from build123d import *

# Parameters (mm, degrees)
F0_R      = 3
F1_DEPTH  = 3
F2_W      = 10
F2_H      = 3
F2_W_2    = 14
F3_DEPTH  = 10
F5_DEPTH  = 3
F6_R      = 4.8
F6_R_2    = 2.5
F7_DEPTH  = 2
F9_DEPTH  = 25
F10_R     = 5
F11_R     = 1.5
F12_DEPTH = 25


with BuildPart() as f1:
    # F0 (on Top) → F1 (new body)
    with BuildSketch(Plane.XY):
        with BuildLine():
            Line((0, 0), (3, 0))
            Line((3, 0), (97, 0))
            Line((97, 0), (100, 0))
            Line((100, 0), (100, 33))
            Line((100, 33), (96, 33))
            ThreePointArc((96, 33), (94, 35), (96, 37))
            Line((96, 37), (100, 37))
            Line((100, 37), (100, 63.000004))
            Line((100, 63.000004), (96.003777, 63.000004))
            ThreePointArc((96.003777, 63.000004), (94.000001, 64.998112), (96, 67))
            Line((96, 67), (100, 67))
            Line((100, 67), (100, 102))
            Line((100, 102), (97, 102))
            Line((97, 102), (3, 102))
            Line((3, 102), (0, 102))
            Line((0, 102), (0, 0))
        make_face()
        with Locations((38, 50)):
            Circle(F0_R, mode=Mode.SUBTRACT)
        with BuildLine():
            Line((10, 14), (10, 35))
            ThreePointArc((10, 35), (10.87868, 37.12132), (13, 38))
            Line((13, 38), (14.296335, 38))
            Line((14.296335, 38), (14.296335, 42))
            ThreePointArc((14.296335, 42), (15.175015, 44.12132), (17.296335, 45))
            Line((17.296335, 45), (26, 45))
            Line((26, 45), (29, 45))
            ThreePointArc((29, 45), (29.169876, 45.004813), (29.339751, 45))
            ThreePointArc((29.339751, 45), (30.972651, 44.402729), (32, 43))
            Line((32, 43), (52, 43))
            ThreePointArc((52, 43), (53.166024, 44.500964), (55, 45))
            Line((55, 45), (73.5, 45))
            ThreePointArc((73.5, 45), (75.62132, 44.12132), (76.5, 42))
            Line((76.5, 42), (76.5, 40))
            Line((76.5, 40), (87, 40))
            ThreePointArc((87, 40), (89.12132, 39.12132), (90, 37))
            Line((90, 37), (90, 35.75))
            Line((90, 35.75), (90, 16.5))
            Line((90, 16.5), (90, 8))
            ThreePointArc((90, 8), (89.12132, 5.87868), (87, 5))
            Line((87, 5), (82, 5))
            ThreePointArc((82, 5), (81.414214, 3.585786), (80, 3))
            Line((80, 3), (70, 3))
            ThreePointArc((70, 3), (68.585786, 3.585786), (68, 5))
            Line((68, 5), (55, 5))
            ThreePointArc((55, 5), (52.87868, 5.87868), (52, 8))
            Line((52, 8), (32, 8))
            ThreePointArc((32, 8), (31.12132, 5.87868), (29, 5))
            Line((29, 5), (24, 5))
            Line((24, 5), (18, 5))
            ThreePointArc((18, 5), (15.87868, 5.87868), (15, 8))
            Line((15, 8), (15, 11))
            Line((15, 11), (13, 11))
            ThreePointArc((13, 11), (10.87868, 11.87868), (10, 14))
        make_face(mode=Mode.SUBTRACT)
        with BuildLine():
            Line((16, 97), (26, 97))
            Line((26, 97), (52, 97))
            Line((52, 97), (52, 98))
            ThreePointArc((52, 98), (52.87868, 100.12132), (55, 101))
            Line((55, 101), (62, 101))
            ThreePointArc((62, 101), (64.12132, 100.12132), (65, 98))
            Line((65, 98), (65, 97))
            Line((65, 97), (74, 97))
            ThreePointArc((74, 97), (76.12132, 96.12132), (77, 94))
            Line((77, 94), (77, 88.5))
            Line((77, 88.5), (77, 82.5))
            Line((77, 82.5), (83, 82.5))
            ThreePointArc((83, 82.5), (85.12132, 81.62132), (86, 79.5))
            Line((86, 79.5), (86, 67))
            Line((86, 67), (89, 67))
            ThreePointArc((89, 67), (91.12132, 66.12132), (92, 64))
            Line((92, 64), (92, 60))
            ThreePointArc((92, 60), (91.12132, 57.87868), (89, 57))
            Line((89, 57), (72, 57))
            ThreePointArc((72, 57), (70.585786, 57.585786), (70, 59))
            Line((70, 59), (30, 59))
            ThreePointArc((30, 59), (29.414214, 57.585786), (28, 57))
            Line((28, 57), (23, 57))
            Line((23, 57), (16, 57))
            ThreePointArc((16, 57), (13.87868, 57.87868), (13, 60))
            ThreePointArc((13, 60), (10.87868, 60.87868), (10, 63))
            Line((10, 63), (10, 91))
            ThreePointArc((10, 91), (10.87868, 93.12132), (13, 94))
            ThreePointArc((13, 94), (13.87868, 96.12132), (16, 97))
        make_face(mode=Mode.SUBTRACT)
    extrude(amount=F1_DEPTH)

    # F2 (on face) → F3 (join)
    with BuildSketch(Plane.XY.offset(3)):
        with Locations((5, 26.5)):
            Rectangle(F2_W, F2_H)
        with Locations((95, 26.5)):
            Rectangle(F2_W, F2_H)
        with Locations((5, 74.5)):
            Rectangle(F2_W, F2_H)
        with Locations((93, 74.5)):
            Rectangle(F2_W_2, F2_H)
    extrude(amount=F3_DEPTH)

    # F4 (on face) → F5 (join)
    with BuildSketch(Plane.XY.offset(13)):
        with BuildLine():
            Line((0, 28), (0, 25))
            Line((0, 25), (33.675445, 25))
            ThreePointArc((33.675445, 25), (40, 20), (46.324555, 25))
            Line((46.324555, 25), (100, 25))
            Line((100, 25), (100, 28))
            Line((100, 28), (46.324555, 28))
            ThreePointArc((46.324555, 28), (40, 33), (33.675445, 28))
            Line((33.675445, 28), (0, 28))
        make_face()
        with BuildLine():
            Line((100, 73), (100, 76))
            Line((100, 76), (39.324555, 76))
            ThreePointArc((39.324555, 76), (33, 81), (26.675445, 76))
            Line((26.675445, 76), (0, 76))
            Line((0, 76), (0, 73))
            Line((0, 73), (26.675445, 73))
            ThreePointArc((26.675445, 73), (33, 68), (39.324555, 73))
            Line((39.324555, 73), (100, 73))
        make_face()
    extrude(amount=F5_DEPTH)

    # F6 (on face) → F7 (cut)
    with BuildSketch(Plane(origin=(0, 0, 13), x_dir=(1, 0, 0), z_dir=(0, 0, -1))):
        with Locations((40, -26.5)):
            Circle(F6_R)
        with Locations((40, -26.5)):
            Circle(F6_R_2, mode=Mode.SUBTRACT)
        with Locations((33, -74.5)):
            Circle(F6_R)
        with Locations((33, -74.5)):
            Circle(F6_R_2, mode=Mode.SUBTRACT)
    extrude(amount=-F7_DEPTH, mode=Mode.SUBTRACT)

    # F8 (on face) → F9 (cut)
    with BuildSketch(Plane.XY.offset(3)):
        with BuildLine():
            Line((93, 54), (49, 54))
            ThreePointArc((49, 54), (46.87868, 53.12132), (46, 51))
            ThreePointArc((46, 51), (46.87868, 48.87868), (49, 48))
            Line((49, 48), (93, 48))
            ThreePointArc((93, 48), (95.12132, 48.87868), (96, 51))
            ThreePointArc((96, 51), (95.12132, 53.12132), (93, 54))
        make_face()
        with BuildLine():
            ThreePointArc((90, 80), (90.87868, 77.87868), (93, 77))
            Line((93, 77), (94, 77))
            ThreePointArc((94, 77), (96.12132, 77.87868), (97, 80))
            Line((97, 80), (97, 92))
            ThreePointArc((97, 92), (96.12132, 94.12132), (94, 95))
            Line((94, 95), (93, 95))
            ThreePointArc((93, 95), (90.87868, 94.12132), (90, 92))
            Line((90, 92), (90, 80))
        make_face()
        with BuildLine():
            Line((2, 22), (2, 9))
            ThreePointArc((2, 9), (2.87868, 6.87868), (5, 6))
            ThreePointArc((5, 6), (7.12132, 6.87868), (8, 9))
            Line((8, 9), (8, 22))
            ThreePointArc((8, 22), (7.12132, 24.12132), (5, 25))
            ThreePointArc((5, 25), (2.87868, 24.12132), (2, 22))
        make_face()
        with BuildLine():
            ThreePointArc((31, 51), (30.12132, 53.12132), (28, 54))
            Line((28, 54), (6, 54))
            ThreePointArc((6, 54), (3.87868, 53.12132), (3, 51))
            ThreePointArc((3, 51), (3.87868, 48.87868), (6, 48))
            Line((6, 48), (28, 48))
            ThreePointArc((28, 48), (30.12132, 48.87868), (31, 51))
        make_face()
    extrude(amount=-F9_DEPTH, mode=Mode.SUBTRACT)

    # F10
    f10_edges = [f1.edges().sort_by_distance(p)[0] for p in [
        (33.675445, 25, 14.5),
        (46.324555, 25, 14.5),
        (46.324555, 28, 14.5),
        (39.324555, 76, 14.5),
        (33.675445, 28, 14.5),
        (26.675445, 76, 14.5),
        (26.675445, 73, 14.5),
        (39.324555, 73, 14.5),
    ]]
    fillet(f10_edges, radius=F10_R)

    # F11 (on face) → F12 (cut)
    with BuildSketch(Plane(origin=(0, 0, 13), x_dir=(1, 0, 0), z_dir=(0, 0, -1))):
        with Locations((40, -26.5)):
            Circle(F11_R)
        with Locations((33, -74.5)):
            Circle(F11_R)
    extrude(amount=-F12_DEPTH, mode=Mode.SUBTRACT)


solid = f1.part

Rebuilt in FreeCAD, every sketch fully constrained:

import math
import FreeCAD as App
import Part
import Sketcher


def edges_at(feature, points):
    """Names of the edges that pass closest to the given points."""
    edges = feature.Shape.Edges
    near = lambda p: min(range(len(edges)), key=lambda i: edges[i].distToShape(Part.Vertex(*p))[0])
    return sorted({f"Edge{near(p) + 1}" for p in points})


def add_polygon(sketch, points):
    """Adds a closed chain of lines whose ends are joined by coincident constraints."""
    first, n = sketch.GeometryCount, len(points)
    for a, b in zip(points, points[1:] + points[:1]):
        sketch.addGeometry(Part.LineSegment(App.Vector(*a, 0), App.Vector(*b, 0)), False)
    for i in range(n):
        sketch.addConstraint(Sketcher.Constraint("Coincident", first + i, 2, first + (i + 1) % n, 1))

doc = App.newDocument("Part")
body = doc.addObject("PartDesign::Body", "Body")

# Sketch on XY plane
sketch1 = body.newObject("Sketcher::SketchObject", "Sketch")
sketch1.AttachmentSupport = (doc.getObject("XY_Plane"), [""])
sketch1.MapMode = "FlatFace"
sketch1.addGeometry([
    Part.LineSegment(App.Vector(0, 0, 0), App.Vector(100, 0, 0)),  # 0
    Part.LineSegment(App.Vector(100, 0, 0), App.Vector(100, 33, 0)),  # 1
    Part.LineSegment(App.Vector(100, 33, 0), App.Vector(96, 33, 0)),  # 2
    Part.ArcOfCircle(Part.Circle(App.Vector(96, 35, 0), App.Vector(0, 0, 1), 2), math.radians(90), math.radians(270)),  # 3
    Part.LineSegment(App.Vector(96, 37, 0), App.Vector(100, 37, 0)),  # 4
    Part.LineSegment(App.Vector(100, 37, 0), App.Vector(100, 63.000004, 0)),  # 5
    Part.LineSegment(App.Vector(100, 63.000004, 0), App.Vector(96.003777, 63.000004, 0)),  # 6
    Part.ArcOfCircle(Part.Circle(App.Vector(96, 65, 0), App.Vector(0, 0, 1), 2), math.radians(89.999997), math.radians(270.108206)),  # 7
    Part.LineSegment(App.Vector(96, 67, 0), App.Vector(100, 67, 0)),  # 8
    Part.LineSegment(App.Vector(100, 67, 0), App.Vector(100, 102, 0)),  # 9
    Part.LineSegment(App.Vector(100, 102, 0), App.Vector(0, 102, 0)),  # 10
    Part.LineSegment(App.Vector(0, 102, 0), App.Vector(0, 0, 0)),  # 11
    Part.ArcOfCircle(Part.Circle(App.Vector(13.000001, 14.000001, 0), App.Vector(0, 0, 1), 3.000001), math.radians(-179.999978), math.radians(-90.000022)),  # 12
    Part.LineSegment(App.Vector(10, 14, 0), App.Vector(10, 35, 0)),  # 13
    Part.ArcOfCircle(Part.Circle(App.Vector(13.000001, 34.999999, 0), App.Vector(0, 0, 1), 3.000001), math.radians(90.000022), math.radians(179.999978)),  # 14
    Part.LineSegment(App.Vector(13, 38, 0), App.Vector(14.296335, 38, 0)),  # 15
    Part.LineSegment(App.Vector(14.296335, 38, 0), App.Vector(14.296335, 42, 0)),  # 16
    Part.ArcOfCircle(Part.Circle(App.Vector(17.296336, 41.999999, 0), App.Vector(0, 0, 1), 3.000001), math.radians(90.000022), math.radians(179.999978)),  # 17
    Part.LineSegment(App.Vector(17.296335, 45, 0), App.Vector(29, 45, 0)),  # 18
    Part.ArcOfCircle(Part.Circle(App.Vector(29.169875, 42.004517, 0), App.Vector(0, 0, 1), 3.000296), math.radians(86.754201), math.radians(93.245799)),  # 19
    Part.ArcOfCircle(Part.Circle(App.Vector(29.169874, 42.004812, 0), App.Vector(0, 0, 1), 3.000002), math.radians(19.373766), math.radians(86.753861)),  # 20
    Part.LineSegment(App.Vector(32, 43, 0), App.Vector(52, 43, 0)),  # 21
    Part.ArcOfCircle(Part.Circle(App.Vector(54.830126, 42.004812, 0), App.Vector(0, 0, 1), 3.000002), math.radians(86.753903), math.radians(160.626232)),  # 22
    Part.LineSegment(App.Vector(55, 45, 0), App.Vector(73.5, 45, 0)),  # 23
    Part.ArcOfCircle(Part.Circle(App.Vector(73.499999, 41.999999, 0), App.Vector(0, 0, 1), 3.000001), math.radians(0.000022), math.radians(89.999978)),  # 24
    Part.LineSegment(App.Vector(76.5, 42, 0), App.Vector(76.5, 40, 0)),  # 25
    Part.LineSegment(App.Vector(76.5, 40, 0), App.Vector(87, 40, 0)),  # 26
    Part.ArcOfCircle(Part.Circle(App.Vector(86.999999, 36.999999, 0), App.Vector(0, 0, 1), 3.000001), math.radians(0.000022), math.radians(89.999978)),  # 27
    Part.LineSegment(App.Vector(90, 37, 0), App.Vector(90, 8, 0)),  # 28
    Part.ArcOfCircle(Part.Circle(App.Vector(86.999999, 8.000001, 0), App.Vector(0, 0, 1), 3.000001), math.radians(-89.999978), math.radians(-0.000022)),  # 29
    Part.LineSegment(App.Vector(87, 5, 0), App.Vector(82, 5, 0)),  # 30
    Part.ArcOfCircle(Part.Circle(App.Vector(80.000001, 4.999999, 0), App.Vector(0, 0, 1), 1.999999), math.radians(-90.000043), math.radians(0.000043)),  # 31
    Part.LineSegment(App.Vector(80, 3, 0), App.Vector(70, 3, 0)),  # 32
    Part.ArcOfCircle(Part.Circle(App.Vector(69.999999, 4.999999, 0), App.Vector(0, 0, 1), 1.999999), math.radians(179.999957), math.radians(270.000043)),  # 33
    Part.LineSegment(App.Vector(68, 5, 0), App.Vector(55, 5, 0)),  # 34
    Part.ArcOfCircle(Part.Circle(App.Vector(55.000001, 8.000001, 0), App.Vector(0, 0, 1), 3.000001), math.radians(-179.999978), math.radians(-90.000022)),  # 35
    Part.LineSegment(App.Vector(52, 8, 0), App.Vector(32, 8, 0)),  # 36
    Part.ArcOfCircle(Part.Circle(App.Vector(28.999999, 8.000001, 0), App.Vector(0, 0, 1), 3.000001), math.radians(-89.999978), math.radians(-0.000022)),  # 37
    Part.LineSegment(App.Vector(29, 5, 0), App.Vector(18, 5, 0)),  # 38
    Part.ArcOfCircle(Part.Circle(App.Vector(18.000001, 8.000001, 0), App.Vector(0, 0, 1), 3.000001), math.radians(-179.999978), math.radians(-90.000022)),  # 39
    Part.LineSegment(App.Vector(15, 8, 0), App.Vector(15, 11, 0)),  # 40
    Part.LineSegment(App.Vector(15, 11, 0), App.Vector(13, 11, 0)),  # 41
    Part.Circle(App.Vector(38, 50, 0), App.Vector(0, 0, 1), 3),  # 42
    Part.ArcOfCircle(Part.Circle(App.Vector(16.000001, 93.999999, 0), App.Vector(0, 0, 1), 3.000001), math.radians(90.000022), math.radians(179.999978)),  # 43
    Part.LineSegment(App.Vector(16, 97, 0), App.Vector(52, 97, 0)),  # 44
    Part.LineSegment(App.Vector(52, 97, 0), App.Vector(52, 98, 0)),  # 45
    Part.ArcOfCircle(Part.Circle(App.Vector(55.000001, 97.999999, 0), App.Vector(0, 0, 1), 3.000001), math.radians(90.000022), math.radians(179.999978)),  # 46
    Part.LineSegment(App.Vector(55, 101, 0), App.Vector(62, 101, 0)),  # 47
    Part.ArcOfCircle(Part.Circle(App.Vector(61.999999, 97.999999, 0), App.Vector(0, 0, 1), 3.000001), math.radians(0.000022), math.radians(89.999978)),  # 48
    Part.LineSegment(App.Vector(65, 98, 0), App.Vector(65, 97, 0)),  # 49
    Part.LineSegment(App.Vector(65, 97, 0), App.Vector(74, 97, 0)),  # 50
    Part.ArcOfCircle(Part.Circle(App.Vector(73.999999, 93.999999, 0), App.Vector(0, 0, 1), 3.000001), math.radians(0.000022), math.radians(89.999978)),  # 51
    Part.LineSegment(App.Vector(77, 94, 0), App.Vector(77, 82.5, 0)),  # 52
    Part.LineSegment(App.Vector(77, 82.5, 0), App.Vector(83, 82.5, 0)),  # 53
    Part.ArcOfCircle(Part.Circle(App.Vector(82.999999, 79.499999, 0), App.Vector(0, 0, 1), 3.000001), math.radians(0.000022), math.radians(89.999978)),  # 54
    Part.LineSegment(App.Vector(86, 79.5, 0), App.Vector(86, 67, 0)),  # 55
    Part.LineSegment(App.Vector(86, 67, 0), App.Vector(89, 67, 0)),  # 56
    Part.ArcOfCircle(Part.Circle(App.Vector(88.999999, 63.999999, 0), App.Vector(0, 0, 1), 3.000001), math.radians(0.000022), math.radians(89.999978)),  # 57
    Part.LineSegment(App.Vector(92, 64, 0), App.Vector(92, 60, 0)),  # 58
    Part.ArcOfCircle(Part.Circle(App.Vector(88.999999, 60.000001, 0), App.Vector(0, 0, 1), 3.000001), math.radians(-89.999978), math.radians(-0.000022)),  # 59
    Part.LineSegment(App.Vector(89, 57, 0), App.Vector(72, 57, 0)),  # 60
    Part.ArcOfCircle(Part.Circle(App.Vector(71.999999, 58.999999, 0), App.Vector(0, 0, 1), 1.999999), math.radians(179.999957), math.radians(270.000043)),  # 61
    Part.LineSegment(App.Vector(70, 59, 0), App.Vector(30, 59, 0)),  # 62
    Part.ArcOfCircle(Part.Circle(App.Vector(28.000001, 58.999999, 0), App.Vector(0, 0, 1), 1.999999), math.radians(-90.000043), math.radians(0.000043)),  # 63
    Part.LineSegment(App.Vector(28, 57, 0), App.Vector(16, 57, 0)),  # 64
    Part.ArcOfCircle(Part.Circle(App.Vector(16.000001, 60.000001, 0), App.Vector(0, 0, 1), 3.000001), math.radians(-179.999978), math.radians(-90.000022)),  # 65
    Part.ArcOfCircle(Part.Circle(App.Vector(13.000001, 63.000001, 0), App.Vector(0, 0, 1), 3.000001), math.radians(-179.999978), math.radians(-90.000022)),  # 66
    Part.LineSegment(App.Vector(10, 63, 0), App.Vector(10, 91, 0)),  # 67
    Part.ArcOfCircle(Part.Circle(App.Vector(13.000001, 90.999999, 0), App.Vector(0, 0, 1), 3.000001), math.radians(90.000022), math.radians(179.999978)),  # 68
], False)
sketch1.addConstraint([
    Sketcher.Constraint("Coincident", 0, 2, 1, 1),
    Sketcher.Constraint("Coincident", 1, 2, 2, 1),
    Sketcher.Constraint("Tangent", 2, 2, 3, 2),
    Sketcher.Constraint("Tangent", 3, 1, 4, 1),
    Sketcher.Constraint("Coincident", 4, 2, 5, 1),
    Sketcher.Constraint("Coincident", 5, 2, 6, 1),
    Sketcher.Constraint("Coincident", 6, 2, 7, 2),
    Sketcher.Constraint("Tangent", 7, 1, 8, 1),
    Sketcher.Constraint("Coincident", 8, 2, 9, 1),
    Sketcher.Constraint("Coincident", 9, 2, 10, 1),
    Sketcher.Constraint("Coincident", 10, 2, 11, 1),
    Sketcher.Constraint("Coincident", 11, 2, 0, 1),
    Sketcher.Constraint("Tangent", 12, 1, 13, 1),
    Sketcher.Constraint("Tangent", 13, 2, 14, 2),
    Sketcher.Constraint("Tangent", 14, 1, 15, 1),
    Sketcher.Constraint("Coincident", 15, 2, 16, 1),
    Sketcher.Constraint("Tangent", 16, 2, 17, 2),
    Sketcher.Constraint("Tangent", 17, 1, 18, 1),
    Sketcher.Constraint("Coincident", 18, 2, 19, 2),
    Sketcher.Constraint("Coincident", 19, 1, 20, 2),
    Sketcher.Constraint("Coincident", 20, 1, 21, 1),
    Sketcher.Constraint("Coincident", 21, 2, 22, 2),
    Sketcher.Constraint("Coincident", 22, 1, 23, 1),
    Sketcher.Constraint("Tangent", 23, 2, 24, 2),
    Sketcher.Constraint("Tangent", 24, 1, 25, 1),
    Sketcher.Constraint("Coincident", 25, 2, 26, 1),
    Sketcher.Constraint("Tangent", 26, 2, 27, 2),
    Sketcher.Constraint("Tangent", 27, 1, 28, 1),
    Sketcher.Constraint("Tangent", 28, 2, 29, 2),
    Sketcher.Constraint("Tangent", 29, 1, 30, 1),
    Sketcher.Constraint("Coincident", 30, 2, 31, 2),
    Sketcher.Constraint("Tangent", 31, 1, 32, 1),
    Sketcher.Constraint("Tangent", 32, 2, 33, 2),
    Sketcher.Constraint("Coincident", 33, 1, 34, 1),
    Sketcher.Constraint("Tangent", 34, 2, 35, 2),
    Sketcher.Constraint("Coincident", 35, 1, 36, 1),
    Sketcher.Constraint("Coincident", 36, 2, 37, 2),
    Sketcher.Constraint("Tangent", 37, 1, 38, 1),
    Sketcher.Constraint("Tangent", 38, 2, 39, 2),
    Sketcher.Constraint("Tangent", 39, 1, 40, 1),
    Sketcher.Constraint("Coincident", 40, 2, 41, 1),
    Sketcher.Constraint("Tangent", 41, 2, 12, 2),
    Sketcher.Constraint("Tangent", 43, 1, 44, 1),
    Sketcher.Constraint("Coincident", 44, 2, 45, 1),
    Sketcher.Constraint("Tangent", 45, 2, 46, 2),
    Sketcher.Constraint("Tangent", 46, 1, 47, 1),
    Sketcher.Constraint("Tangent", 47, 2, 48, 2),
    Sketcher.Constraint("Tangent", 48, 1, 49, 1),
    Sketcher.Constraint("Coincident", 49, 2, 50, 1),
    Sketcher.Constraint("Tangent", 50, 2, 51, 2),
    Sketcher.Constraint("Tangent", 51, 1, 52, 1),
    Sketcher.Constraint("Coincident", 52, 2, 53, 1),
    Sketcher.Constraint("Tangent", 53, 2, 54, 2),
    Sketcher.Constraint("Tangent", 54, 1, 55, 1),
    Sketcher.Constraint("Coincident", 55, 2, 56, 1),
    Sketcher.Constraint("Tangent", 56, 2, 57, 2),
    Sketcher.Constraint("Tangent", 57, 1, 58, 1),
    Sketcher.Constraint("Tangent", 58, 2, 59, 2),
    Sketcher.Constraint("Tangent", 59, 1, 60, 1),
    Sketcher.Constraint("Tangent", 60, 2, 61, 2),
    Sketcher.Constraint("Coincident", 61, 1, 62, 1),
    Sketcher.Constraint("Coincident", 62, 2, 63, 2),
    Sketcher.Constraint("Tangent", 63, 1, 64, 1),
    Sketcher.Constraint("Tangent", 64, 2, 65, 2),
    Sketcher.Constraint("Coincident", 65, 1, 66, 2),
    Sketcher.Constraint("Tangent", 66, 1, 67, 1),
    Sketcher.Constraint("Tangent", 67, 2, 68, 2),
    Sketcher.Constraint("Coincident", 68, 1, 43, 2),
    Sketcher.Constraint("Horizontal", 0),
    Sketcher.Constraint("Vertical", 1),
    Sketcher.Constraint("Horizontal", 2),
    Sketcher.Constraint("Horizontal", 4),
    Sketcher.Constraint("Vertical", 5),
    Sketcher.Constraint("Horizontal", 6),
    Sketcher.Constraint("Horizontal", 8),
    Sketcher.Constraint("Vertical", 9),
    Sketcher.Constraint("Horizontal", 10),
    Sketcher.Constraint("Vertical", 11),
    Sketcher.Constraint("Vertical", 13),
    Sketcher.Constraint("Horizontal", 15),
    Sketcher.Constraint("Vertical", 16),
    Sketcher.Constraint("Horizontal", 18),
    Sketcher.Constraint("Horizontal", 21),
    Sketcher.Constraint("Horizontal", 23),
    Sketcher.Constraint("Vertical", 25),
    Sketcher.Constraint("Horizontal", 26),
    Sketcher.Constraint("Vertical", 28),
    Sketcher.Constraint("Horizontal", 30),
    Sketcher.Constraint("Horizontal", 32),
    Sketcher.Constraint("Horizontal", 34),
    Sketcher.Constraint("Horizontal", 36),
    Sketcher.Constraint("Horizontal", 38),
    Sketcher.Constraint("Vertical", 40),
    Sketcher.Constraint("Horizontal", 41),
    Sketcher.Constraint("Horizontal", 44),
    Sketcher.Constraint("Vertical", 45),
    Sketcher.Constraint("Horizontal", 47),
    Sketcher.Constraint("Vertical", 49),
    Sketcher.Constraint("Horizontal", 50),
    Sketcher.Constraint("Vertical", 52),
    Sketcher.Constraint("Horizontal", 53),
    Sketcher.Constraint("Vertical", 55),
    Sketcher.Constraint("Horizontal", 56),
    Sketcher.Constraint("Vertical", 58),
    Sketcher.Constraint("Horizontal", 60),
    Sketcher.Constraint("Horizontal", 62),
    Sketcher.Constraint("Horizontal", 64),
    Sketcher.Constraint("Vertical", 67),
    Sketcher.Constraint("Coincident", 11, 2, -1, 1),
    Sketcher.Constraint("Equal", 3, 7),
    Sketcher.Constraint("Equal", 12, 14),
    Sketcher.Constraint("Equal", 14, 17),
    Sketcher.Constraint("Equal", 17, 20),
    Sketcher.Constraint("Equal", 20, 22),
    Sketcher.Constraint("Equal", 22, 24),
    Sketcher.Constraint("Equal", 24, 27),
    Sketcher.Constraint("Equal", 27, 29),
    Sketcher.Constraint("Equal", 7, 31),
    Sketcher.Constraint("Equal", 31, 33),
    Sketcher.Constraint("Equal", 29, 35),
    Sketcher.Constraint("Equal", 35, 37),
    Sketcher.Constraint("Equal", 37, 39),
    Sketcher.Constraint("Equal", 39, 42),
    Sketcher.Constraint("Equal", 42, 43),
    Sketcher.Constraint("Equal", 43, 46),
    Sketcher.Constraint("Equal", 46, 48),
    Sketcher.Constraint("Equal", 48, 51),
    Sketcher.Constraint("Equal", 51, 54),
    Sketcher.Constraint("Equal", 54, 57),
    Sketcher.Constraint("Equal", 57, 59),
    Sketcher.Constraint("Equal", 33, 61),
    Sketcher.Constraint("Equal", 61, 63),
    Sketcher.Constraint("Equal", 59, 65),
    Sketcher.Constraint("Equal", 65, 66),
    Sketcher.Constraint("Equal", 66, 68),
    Sketcher.Constraint("Horizontal", 3, 3, 14, 3),
    Sketcher.Constraint("Horizontal", 20, 3, 22, 3),
    Sketcher.Constraint("Horizontal", 17, 3, 24, 3),
    Sketcher.Constraint("Horizontal", 29, 3, 35, 3),
    Sketcher.Constraint("Horizontal", 35, 3, 37, 3),
    Sketcher.Constraint("Horizontal", 43, 3, 51, 3),
    Sketcher.Constraint("Horizontal", 61, 3, 63, 3),
    Sketcher.Constraint("Horizontal", 27, 3, 3, 1),
    Sketcher.Constraint("Horizontal", 18, 2, 19, 1),
    Sketcher.Constraint("Horizontal", 33, 3, 29, 1),
    Sketcher.Constraint("Horizontal", 28, 2, 35, 1),
    Sketcher.Constraint("Horizontal", 8, 2, 55, 2),
    Sketcher.Constraint("Horizontal", 63, 3, 61, 1),
    Sketcher.Constraint("Horizontal", 58, 2, 65, 1),
    Sketcher.Constraint("Horizontal", 51, 1, 68, 1),
    Sketcher.Constraint("Vertical", 3, 3, 7, 3),
    Sketcher.Constraint("Vertical", 19, 3, 20, 3),
    Sketcher.Constraint("Vertical", 35, 3, 46, 3),
    Sketcher.Constraint("Vertical", 43, 3, 65, 3),
    Sketcher.Constraint("Vertical", 14, 3, 66, 3),
    Sketcher.Constraint("Vertical", 1, 2, 4, 2),
    Sketcher.Constraint("Vertical", 5, 2, 8, 2),
    Sketcher.Constraint("Vertical", 37, 3, 18, 2),
    Sketcher.Constraint("Vertical", 46, 3, 22, 1),
    Sketcher.Constraint("Vertical", 21, 2, 35, 1),
    Sketcher.Constraint("Vertical", 32, 2, 61, 1),
    Sketcher.Constraint("Vertical", 41, 2, 65, 1),
    Sketcher.Constraint("Equal", 8, 16),
    Sketcher.Constraint("Equal", 41, 25),
    Sketcher.Constraint("Equal", 56, 40),
    Sketcher.Constraint("Equal", 16, 58),
    Sketcher.Constraint("Diameter", 42, 6.0),
    Sketcher.Constraint("Radius", 3, 2.0),
    Sketcher.Constraint("DistanceX", 0, 1, 0, 2, 100.0),
    Sketcher.Constraint("DistanceX", 2, 2, 2, 1, 4.0),
    Sketcher.Constraint("DistanceX", 21, 1, 21, 2, 20.0),
    Sketcher.Constraint("DistanceX", 30, 2, 30, 1, 5.0),
    Sketcher.Constraint("DistanceX", 32, 2, 32, 1, 10.0),
    Sketcher.Constraint("DistanceX", 34, 2, 34, 1, 13.0),
    Sketcher.Constraint("DistanceX", 38, 2, 38, 1, 11.0),
    Sketcher.Constraint("DistanceX", 47, 1, 47, 2, 7.0),
    Sketcher.Constraint("DistanceX", 50, 1, 50, 2, 9.0),
    Sketcher.Constraint("DistanceX", 53, 1, 53, 2, 6.0),
    Sketcher.Constraint("DistanceX", 56, 1, 56, 2, 3.0),
    Sketcher.Constraint("DistanceX", 62, 2, 62, 1, 40.0),
    Sketcher.Constraint("DistanceY", 1, 1, 1, 2, 33.0),
    Sketcher.Constraint("DistanceY", 9, 1, 9, 2, 35.0),
    Sketcher.Constraint("DistanceY", 11, 2, 11, 1, 102.0),
    Sketcher.Constraint("DistanceY", 13, 1, 13, 2, 21.0),
    Sketcher.Constraint("DistanceY", 45, 1, 45, 2, 1.0),
    Sketcher.Constraint("DistanceY", 67, 1, 67, 2, 28.0),
    Sketcher.Constraint("DistanceX", 23, 1, 23, 2, 18.5),
    Sketcher.Constraint("DistanceY", 52, 2, 52, 1, 11.5),
    Sketcher.Constraint("DistanceX", -1, 1, 12, 3, 13.000001),
    Sketcher.Constraint("DistanceX", -1, 1, 42, 3, 38.0),
    Sketcher.Constraint("DistanceY", -1, 1, 42, 3, 50.0),
    Sketcher.Constraint("DistanceY", -1, 1, 20, 1, 43.0),
    Sketcher.Constraint("Radius", 19, 3.000296),
    Sketcher.Constraint("DistanceX", 6, 2, 6, 1, 3.996223),
    Sketcher.Constraint("DistanceX", 15, 1, 15, 2, 1.296335),
])
pad1 = body.newObject("PartDesign::Pad", "Pad")
pad1.Profile = sketch1
pad1.Length = 3

# Sketch on XY plane
sketch2 = body.newObject("Sketcher::SketchObject", "Sketch001")
sketch2.AttachmentSupport = (doc.getObject("XY_Plane"), [""])
sketch2.MapMode = "FlatFace"
sketch2.AttachmentOffset = App.Placement(App.Vector(0, 0, 3), App.Rotation())
add_polygon(sketch2, [(0, 28), (0, 25), (10, 25), (10, 28)])  # lines 0-3
add_polygon(sketch2, [(90, 28), (90, 25), (100, 25), (100, 28)])  # lines 4-7
add_polygon(sketch2, [(0, 76), (0, 73), (10, 73), (10, 76)])  # lines 8-11
add_polygon(sketch2, [(86, 76), (86, 73), (100, 73), (100, 76)])  # lines 12-15
sketch2.addConstraint([
    Sketcher.Constraint("Vertical", 0),
    Sketcher.Constraint("Horizontal", 1),
    Sketcher.Constraint("Vertical", 2),
    Sketcher.Constraint("Horizontal", 3),
    Sketcher.Constraint("Vertical", 4),
    Sketcher.Constraint("Horizontal", 5),
    Sketcher.Constraint("Vertical", 6),
    Sketcher.Constraint("Horizontal", 7),
    Sketcher.Constraint("Vertical", 8),
    Sketcher.Constraint("Horizontal", 9),
    Sketcher.Constraint("Vertical", 10),
    Sketcher.Constraint("Horizontal", 11),
    Sketcher.Constraint("Vertical", 12),
    Sketcher.Constraint("Horizontal", 13),
    Sketcher.Constraint("Vertical", 14),
    Sketcher.Constraint("Horizontal", 15),
    Sketcher.Constraint("PointOnObject", 0, 2, -2),
    Sketcher.Constraint("PointOnObject", 8, 2, -2),
    Sketcher.Constraint("Horizontal", 1, 2, 4, 2),
    Sketcher.Constraint("Horizontal", 3, 2, 6, 2),
    Sketcher.Constraint("Horizontal", 9, 2, 12, 2),
    Sketcher.Constraint("Horizontal", 11, 2, 14, 2),
    Sketcher.Constraint("Vertical", 2, 2, 9, 2),
    Sketcher.Constraint("Vertical", 6, 2, 13, 2),
    Sketcher.Constraint("Equal", 3, 5),
    Sketcher.Constraint("Equal", 6, 8),
    Sketcher.Constraint("DistanceX", 1, 1, 1, 2, 10.0),
    Sketcher.Constraint("DistanceX", 13, 1, 13, 2, 14.0),
    Sketcher.Constraint("DistanceY", 0, 2, 0, 1, 3.0),
    Sketcher.Constraint("DistanceY", -1, 1, 0, 2, 25.0),
    Sketcher.Constraint("DistanceX", -1, 1, 4, 2, 90.0),
    Sketcher.Constraint("DistanceY", -1, 1, 8, 2, 73.0),
])
pad2 = body.newObject("PartDesign::Pad", "Pad001")
pad2.Profile = sketch2
pad2.Length = 10

# Sketch on XY plane
sketch3 = body.newObject("Sketcher::SketchObject", "Sketch002")
sketch3.AttachmentSupport = (doc.getObject("XY_Plane"), [""])
sketch3.MapMode = "FlatFace"
sketch3.AttachmentOffset = App.Placement(App.Vector(0, 0, 13), App.Rotation())
sketch3.addGeometry([
    Part.LineSegment(App.Vector(0, 28, 0), App.Vector(0, 25, 0)),  # 0
    Part.LineSegment(App.Vector(0, 25, 0), App.Vector(33.675445, 25, 0)),  # 1
    Part.ArcOfCircle(Part.Circle(App.Vector(40, 26.5, 0), App.Vector(0, 0, 1), 6.5), math.radians(-166.657639), math.radians(-13.342361)),  # 2
    Part.LineSegment(App.Vector(46.324555, 25, 0), App.Vector(100, 25, 0)),  # 3
    Part.LineSegment(App.Vector(100, 25, 0), App.Vector(100, 28, 0)),  # 4
    Part.LineSegment(App.Vector(100, 28, 0), App.Vector(46.324555, 28, 0)),  # 5
    Part.ArcOfCircle(Part.Circle(App.Vector(40, 26.5, 0), App.Vector(0, 0, 1), 6.5), math.radians(13.342361), math.radians(166.657639)),  # 6
    Part.LineSegment(App.Vector(33.675445, 28, 0), App.Vector(0, 28, 0)),  # 7
    Part.LineSegment(App.Vector(100, 73, 0), App.Vector(100, 76, 0)),  # 8
    Part.LineSegment(App.Vector(100, 76, 0), App.Vector(39.324555, 76, 0)),  # 9
    Part.ArcOfCircle(Part.Circle(App.Vector(33, 74.5, 0), App.Vector(0, 0, 1), 6.5), math.radians(13.342361), math.radians(166.657639)),  # 10
    Part.LineSegment(App.Vector(26.675445, 76, 0), App.Vector(0, 76, 0)),  # 11
    Part.LineSegment(App.Vector(0, 76, 0), App.Vector(0, 73, 0)),  # 12
    Part.LineSegment(App.Vector(0, 73, 0), App.Vector(26.675445, 73, 0)),  # 13
    Part.ArcOfCircle(Part.Circle(App.Vector(33, 74.5, 0), App.Vector(0, 0, 1), 6.5), math.radians(-166.657639), math.radians(-13.342361)),  # 14
    Part.LineSegment(App.Vector(39.324555, 73, 0), App.Vector(100, 73, 0)),  # 15
], False)
sketch3.addConstraint([
    Sketcher.Constraint("Coincident", 0, 2, 1, 1),
    Sketcher.Constraint("Coincident", 1, 2, 2, 1),
    Sketcher.Constraint("Coincident", 2, 2, 3, 1),
    Sketcher.Constraint("Coincident", 3, 2, 4, 1),
    Sketcher.Constraint("Coincident", 4, 2, 5, 1),
    Sketcher.Constraint("Coincident", 5, 2, 6, 1),
    Sketcher.Constraint("Coincident", 6, 2, 7, 1),
    Sketcher.Constraint("Coincident", 7, 2, 0, 1),
    Sketcher.Constraint("Coincident", 8, 2, 9, 1),
    Sketcher.Constraint("Coincident", 9, 2, 10, 1),
    Sketcher.Constraint("Coincident", 10, 2, 11, 1),
    Sketcher.Constraint("Coincident", 11, 2, 12, 1),
    Sketcher.Constraint("Coincident", 12, 2, 13, 1),
    Sketcher.Constraint("Coincident", 13, 2, 14, 1),
    Sketcher.Constraint("Coincident", 14, 2, 15, 1),
    Sketcher.Constraint("Coincident", 15, 2, 8, 1),
    Sketcher.Constraint("Vertical", 0),
    Sketcher.Constraint("Horizontal", 1),
    Sketcher.Constraint("Horizontal", 3),
    Sketcher.Constraint("Vertical", 4),
    Sketcher.Constraint("Horizontal", 5),
    Sketcher.Constraint("Horizontal", 7),
    Sketcher.Constraint("Vertical", 8),
    Sketcher.Constraint("Horizontal", 9),
    Sketcher.Constraint("Horizontal", 11),
    Sketcher.Constraint("Vertical", 12),
    Sketcher.Constraint("Horizontal", 13),
    Sketcher.Constraint("Horizontal", 15),
    Sketcher.Constraint("Coincident", 6, 3, 2, 3),
    Sketcher.Constraint("Coincident", 14, 3, 10, 3),
    Sketcher.Constraint("Equal", 2, 6),
    Sketcher.Constraint("Equal", 6, 10),
    Sketcher.Constraint("Equal", 10, 14),
    Sketcher.Constraint("PointOnObject", 0, 2, -2),
    Sketcher.Constraint("PointOnObject", 11, 2, -2),
    Sketcher.Constraint("Horizontal", 1, 2, 2, 2),
    Sketcher.Constraint("Horizontal", 5, 2, 6, 2),
    Sketcher.Constraint("Horizontal", 9, 2, 10, 2),
    Sketcher.Constraint("Horizontal", 13, 2, 14, 2),
    Sketcher.Constraint("Vertical", 2, 2, 5, 2),
    Sketcher.Constraint("Vertical", 4, 2, 8, 2),
    Sketcher.Constraint("Vertical", 10, 2, 13, 2),
    Sketcher.Constraint("Equal", 4, 8),
    Sketcher.Constraint("Radius", 2, 6.5),
    Sketcher.Constraint("DistanceY", 0, 2, 0, 1, 3.0),
    Sketcher.Constraint("DistanceX", -1, 1, 2, 3, 40.0),
    Sketcher.Constraint("DistanceX", -1, 1, 10, 3, 33.0),
    Sketcher.Constraint("DistanceY", -1, 1, 0, 2, 25.0),
    Sketcher.Constraint("DistanceX", -1, 1, 3, 2, 100.0),
    Sketcher.Constraint("DistanceY", -1, 1, 8, 2, 76.0),
])
pad3 = body.newObject("PartDesign::Pad", "Pad002")
pad3.Profile = sketch3
pad3.Length = 3

# Sketch on XY plane
sketch4 = body.newObject("Sketcher::SketchObject", "Sketch003")
sketch4.AttachmentSupport = (doc.getObject("XY_Plane"), [""])
sketch4.MapMode = "FlatFace"
sketch4.AttachmentOffset = App.Placement(App.Vector(0, 0, 13), App.Rotation())
sketch4.addGeometry([
    Part.Circle(App.Vector(40, 26.5, 0), App.Vector(0, 0, 1), 4.8),
    Part.Circle(App.Vector(40, 26.5, 0), App.Vector(0, 0, 1), 2.5),
    Part.Circle(App.Vector(33, 74.5, 0), App.Vector(0, 0, 1), 4.8),
    Part.Circle(App.Vector(33, 74.5, 0), App.Vector(0, 0, 1), 2.5),
], False)
sketch4.addConstraint([
    Sketcher.Constraint("Coincident", 1, 3, 0, 3),
    Sketcher.Constraint("Coincident", 3, 3, 2, 3),
    Sketcher.Constraint("Equal", 0, 2),
    Sketcher.Constraint("Equal", 1, 3),
    Sketcher.Constraint("Diameter", 1, 5.0),
    Sketcher.Constraint("Diameter", 0, 9.6),
    Sketcher.Constraint("DistanceX", -1, 1, 0, 3, 40.0),
    Sketcher.Constraint("DistanceX", -1, 1, 2, 3, 33.0),
    Sketcher.Constraint("DistanceY", 0, 3, 2, 3, 48.0),
    Sketcher.Constraint("DistanceY", -1, 1, 0, 3, 26.5),
])
pocket1 = body.newObject("PartDesign::Pocket", "Pocket")
pocket1.Profile = sketch4
pocket1.Length = 2
pocket1.Reversed = True

# Sketch on XY plane
sketch5 = body.newObject("Sketcher::SketchObject", "Sketch004")
sketch5.AttachmentSupport = (doc.getObject("XY_Plane"), [""])
sketch5.MapMode = "FlatFace"
sketch5.AttachmentOffset = App.Placement(App.Vector(0, 0, 3), App.Rotation())
sketch5.addGeometry([
    Part.LineSegment(App.Vector(93, 54, 0), App.Vector(49, 54, 0)),  # 0
    Part.ArcOfCircle(Part.Circle(App.Vector(49.000001, 50.999999, 0), App.Vector(0, 0, 1), 3.000001), math.radians(90.000022), math.radians(179.999978)),  # 1
    Part.ArcOfCircle(Part.Circle(App.Vector(49.000001, 51.000001, 0), App.Vector(0, 0, 1), 3.000001), math.radians(-179.999978), math.radians(-90.000022)),  # 2
    Part.LineSegment(App.Vector(49, 48, 0), App.Vector(93, 48, 0)),  # 3
    Part.ArcOfCircle(Part.Circle(App.Vector(92.999999, 51.000001, 0), App.Vector(0, 0, 1), 3.000001), math.radians(-89.999978), math.radians(-0.000022)),  # 4
    Part.ArcOfCircle(Part.Circle(App.Vector(92.999999, 50.999999, 0), App.Vector(0, 0, 1), 3.000001), math.radians(0.000022), math.radians(89.999978)),  # 5
    Part.ArcOfCircle(Part.Circle(App.Vector(93.000001, 80.000001, 0), App.Vector(0, 0, 1), 3.000001), math.radians(-179.999978), math.radians(-90.000022)),  # 6
    Part.LineSegment(App.Vector(93, 77, 0), App.Vector(94, 77, 0)),  # 7
    Part.ArcOfCircle(Part.Circle(App.Vector(93.999999, 80.000001, 0), App.Vector(0, 0, 1), 3.000001), math.radians(-89.999978), math.radians(-0.000022)),  # 8
    Part.LineSegment(App.Vector(97, 80, 0), App.Vector(97, 92, 0)),  # 9
    Part.ArcOfCircle(Part.Circle(App.Vector(93.999999, 91.999999, 0), App.Vector(0, 0, 1), 3.000001), math.radians(0.000022), math.radians(89.999978)),  # 10
    Part.LineSegment(App.Vector(94, 95, 0), App.Vector(93, 95, 0)),  # 11
    Part.ArcOfCircle(Part.Circle(App.Vector(93.000001, 91.999999, 0), App.Vector(0, 0, 1), 3.000001), math.radians(90.000022), math.radians(179.999978)),  # 12
    Part.LineSegment(App.Vector(90, 92, 0), App.Vector(90, 80, 0)),  # 13
    Part.LineSegment(App.Vector(2, 22, 0), App.Vector(2, 9, 0)),  # 14
    Part.ArcOfCircle(Part.Circle(App.Vector(5.000001, 9.000001, 0), App.Vector(0, 0, 1), 3.000001), math.radians(-179.999978), math.radians(-90.000022)),  # 15
    Part.ArcOfCircle(Part.Circle(App.Vector(4.999999, 9.000001, 0), App.Vector(0, 0, 1), 3.000001), math.radians(-89.999978), math.radians(-0.000022)),  # 16
    Part.LineSegment(App.Vector(8, 9, 0), App.Vector(8, 22, 0)),  # 17
    Part.ArcOfCircle(Part.Circle(App.Vector(4.999999, 21.999999, 0), App.Vector(0, 0, 1), 3.000001), math.radians(0.000022), math.radians(89.999978)),  # 18
    Part.ArcOfCircle(Part.Circle(App.Vector(5.000001, 21.999999, 0), App.Vector(0, 0, 1), 3.000001), math.radians(90.000022), math.radians(179.999978)),  # 19
    Part.ArcOfCircle(Part.Circle(App.Vector(27.999999, 50.999999, 0), App.Vector(0, 0, 1), 3.000001), math.radians(0.000022), math.radians(89.999978)),  # 20
    Part.LineSegment(App.Vector(28, 54, 0), App.Vector(6, 54, 0)),  # 21
    Part.ArcOfCircle(Part.Circle(App.Vector(6.000001, 50.999999, 0), App.Vector(0, 0, 1), 3.000001), math.radians(90.000022), math.radians(179.999978)),  # 22
    Part.ArcOfCircle(Part.Circle(App.Vector(6.000001, 51.000001, 0), App.Vector(0, 0, 1), 3.000001), math.radians(-179.999978), math.radians(-90.000022)),  # 23
    Part.LineSegment(App.Vector(6, 48, 0), App.Vector(28, 48, 0)),  # 24
    Part.ArcOfCircle(Part.Circle(App.Vector(27.999999, 51.000001, 0), App.Vector(0, 0, 1), 3.000001), math.radians(-89.999978), math.radians(-0.000022)),  # 25
], False)
sketch5.addConstraint([
    Sketcher.Constraint("Tangent", 0, 2, 1, 1),
    Sketcher.Constraint("Tangent", 1, 2, 2, 1),
    Sketcher.Constraint("Tangent", 2, 2, 3, 1),
    Sketcher.Constraint("Tangent", 3, 2, 4, 1),
    Sketcher.Constraint("Tangent", 4, 2, 5, 1),
    Sketcher.Constraint("Tangent", 5, 2, 0, 1),
    Sketcher.Constraint("Tangent", 6, 2, 7, 1),
    Sketcher.Constraint("Tangent", 7, 2, 8, 1),
    Sketcher.Constraint("Tangent", 8, 2, 9, 1),
    Sketcher.Constraint("Tangent", 9, 2, 10, 1),
    Sketcher.Constraint("Tangent", 10, 2, 11, 1),
    Sketcher.Constraint("Tangent", 11, 2, 12, 1),
    Sketcher.Constraint("Tangent", 12, 2, 13, 1),
    Sketcher.Constraint("Tangent", 13, 2, 6, 1),
    Sketcher.Constraint("Tangent", 14, 2, 15, 1),
    Sketcher.Constraint("Tangent", 15, 2, 16, 1),
    Sketcher.Constraint("Tangent", 16, 2, 17, 1),
    Sketcher.Constraint("Tangent", 17, 2, 18, 1),
    Sketcher.Constraint("Tangent", 18, 2, 19, 1),
    Sketcher.Constraint("Tangent", 19, 2, 14, 1),
    Sketcher.Constraint("Tangent", 20, 2, 21, 1),
    Sketcher.Constraint("Tangent", 21, 2, 22, 1),
    Sketcher.Constraint("Tangent", 22, 2, 23, 1),
    Sketcher.Constraint("Tangent", 23, 2, 24, 1),
    Sketcher.Constraint("Tangent", 24, 2, 25, 1),
    Sketcher.Constraint("Tangent", 25, 2, 20, 1),
    Sketcher.Constraint("Horizontal", 0),
    Sketcher.Constraint("Horizontal", 3),
    Sketcher.Constraint("Horizontal", 7),
    Sketcher.Constraint("Vertical", 9),
    Sketcher.Constraint("Horizontal", 11),
    Sketcher.Constraint("Vertical", 13),
    Sketcher.Constraint("Vertical", 14),
    Sketcher.Constraint("Vertical", 17),
    Sketcher.Constraint("Horizontal", 21),
    Sketcher.Constraint("Horizontal", 24),
    Sketcher.Constraint("Equal", 1, 2),
    Sketcher.Constraint("Equal", 2, 4),
    Sketcher.Constraint("Equal", 5, 6),
    Sketcher.Constraint("Equal", 6, 8),
    Sketcher.Constraint("Equal", 8, 10),
    Sketcher.Constraint("Equal", 10, 12),
    Sketcher.Constraint("Equal", 12, 15),
    Sketcher.Constraint("Equal", 15, 16),
    Sketcher.Constraint("Equal", 16, 18),
    Sketcher.Constraint("Equal", 19, 20),
    Sketcher.Constraint("Equal", 20, 22),
    Sketcher.Constraint("Equal", 22, 23),
    Sketcher.Constraint("Horizontal", 5, 3, 20, 3),
    Sketcher.Constraint("Horizontal", 25, 3, 1, 2),
    Sketcher.Constraint("Horizontal", 1, 2, 4, 2),
    Sketcher.Constraint("Horizontal", 4, 2, 22, 2),
    Sketcher.Constraint("Horizontal", 22, 2, 25, 2),
    Sketcher.Constraint("Vertical", 12, 3, 3, 2),
    Sketcher.Constraint("Vertical", 19, 3, 15, 2),
    Sketcher.Constraint("Vertical", 15, 2, 18, 2),
    Sketcher.Constraint("Radius", 1, 3.000001),
    Sketcher.Constraint("DistanceX", 0, 2, 0, 1, 44.0),
    Sketcher.Constraint("DistanceX", 7, 1, 7, 2, 1.0),
    Sketcher.Constraint("DistanceX", 21, 2, 21, 1, 22.0),
    Sketcher.Constraint("DistanceY", 9, 1, 9, 2, 12.0),
    Sketcher.Constraint("DistanceY", 14, 2, 14, 1, 13.0),
    Sketcher.Constraint("DistanceX", -1, 1, 1, 3, 49.000001),
    Sketcher.Constraint("DistanceY", -1, 1, 1, 3, 50.999999),
    Sketcher.Constraint("DistanceY", -1, 1, 6, 3, 80.000001),
    Sketcher.Constraint("DistanceX", -1, 1, 15, 3, 5.000001),
    Sketcher.Constraint("DistanceY", -1, 1, 15, 3, 9.000001),
    Sketcher.Constraint("DistanceX", -1, 1, 20, 3, 27.999999),
])
pocket2 = body.newObject("PartDesign::Pocket", "Pocket001")
pocket2.Profile = sketch5
pocket2.Length = 25
doc.recompute()

fillet = body.newObject("PartDesign::Fillet", "Fillet")
fillet.Base = (pocket2, edges_at(pocket2, [
    (33.675, 25, 14.5),
    (46.325, 25, 14.5),
    (46.325, 28, 14.5),
    (39.325, 76, 14.5),
    (33.675, 28, 14.5),
    (26.675, 76, 14.5),
    (26.675, 73, 14.5),
    (39.325, 73, 14.5),
]))
fillet.Radius = 5

# Sketch on XY plane
sketch6 = body.newObject("Sketcher::SketchObject", "Sketch005")
sketch6.AttachmentSupport = (doc.getObject("XY_Plane"), [""])
sketch6.MapMode = "FlatFace"
sketch6.AttachmentOffset = App.Placement(App.Vector(0, 0, 13), App.Rotation())
sketch6.addGeometry([
    Part.Circle(App.Vector(40, 26.5, 0), App.Vector(0, 0, 1), 1.5),
    Part.Circle(App.Vector(33, 74.5, 0), App.Vector(0, 0, 1), 1.5),
], False)
sketch6.addConstraint([
    Sketcher.Constraint("Equal", 0, 1),
    Sketcher.Constraint("Diameter", 0, 3.0),
    Sketcher.Constraint("DistanceX", -1, 1, 0, 3, 40.0),
    Sketcher.Constraint("DistanceX", -1, 1, 1, 3, 33.0),
    Sketcher.Constraint("DistanceY", 0, 3, 1, 3, 48.0),
    Sketcher.Constraint("DistanceY", -1, 1, 0, 3, 26.5),
])
pocket3 = body.newObject("PartDesign::Pocket", "Pocket002")
pocket3.Profile = sketch6
pocket3.Length = 25
pocket3.Reversed = True

doc.recompute()
